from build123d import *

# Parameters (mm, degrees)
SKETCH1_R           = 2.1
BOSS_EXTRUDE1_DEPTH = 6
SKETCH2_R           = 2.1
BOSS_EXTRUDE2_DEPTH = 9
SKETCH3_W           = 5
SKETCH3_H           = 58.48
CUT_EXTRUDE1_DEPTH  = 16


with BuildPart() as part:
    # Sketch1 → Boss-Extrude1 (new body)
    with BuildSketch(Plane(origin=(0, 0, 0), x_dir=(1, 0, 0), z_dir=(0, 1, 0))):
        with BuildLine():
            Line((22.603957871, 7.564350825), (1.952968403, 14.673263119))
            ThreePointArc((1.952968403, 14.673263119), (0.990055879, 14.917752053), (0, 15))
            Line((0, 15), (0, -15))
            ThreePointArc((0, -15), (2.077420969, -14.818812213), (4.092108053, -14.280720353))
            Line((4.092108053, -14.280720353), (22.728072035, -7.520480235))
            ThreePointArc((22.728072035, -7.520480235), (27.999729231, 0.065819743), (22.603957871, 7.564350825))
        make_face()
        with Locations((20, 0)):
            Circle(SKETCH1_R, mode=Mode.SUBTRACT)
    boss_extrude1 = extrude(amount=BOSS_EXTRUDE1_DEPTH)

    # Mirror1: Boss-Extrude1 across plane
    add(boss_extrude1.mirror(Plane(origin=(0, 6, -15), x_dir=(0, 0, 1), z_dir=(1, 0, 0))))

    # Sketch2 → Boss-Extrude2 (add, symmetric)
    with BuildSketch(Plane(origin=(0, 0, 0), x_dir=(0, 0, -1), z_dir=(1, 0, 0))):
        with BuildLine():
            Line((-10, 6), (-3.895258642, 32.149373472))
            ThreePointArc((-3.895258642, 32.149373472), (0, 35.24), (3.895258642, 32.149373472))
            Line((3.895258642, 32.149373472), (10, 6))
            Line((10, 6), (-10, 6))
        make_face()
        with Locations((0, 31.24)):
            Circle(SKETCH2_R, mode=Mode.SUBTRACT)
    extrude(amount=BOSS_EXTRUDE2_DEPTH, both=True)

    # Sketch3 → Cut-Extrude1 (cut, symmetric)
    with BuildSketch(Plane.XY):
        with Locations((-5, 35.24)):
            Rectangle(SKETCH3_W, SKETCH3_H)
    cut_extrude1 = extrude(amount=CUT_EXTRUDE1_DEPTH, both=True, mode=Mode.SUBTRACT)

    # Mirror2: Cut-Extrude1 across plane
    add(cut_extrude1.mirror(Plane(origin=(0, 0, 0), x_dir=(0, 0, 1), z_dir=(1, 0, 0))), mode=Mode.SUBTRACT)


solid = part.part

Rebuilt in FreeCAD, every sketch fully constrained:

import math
import FreeCAD as App
import Part
import Sketcher
from FreeCAD import Vector


def add_polygon(sketch, points):
    """Adds a closed chain of lines whose ends are joined by coincident constraints."""
    first, n = sketch.GeometryCount, len(points)
    for a, b in zip(points, points[1:] + points[:1]):
        sketch.addGeometry(Part.LineSegment(App.Vector(*a, 0), App.Vector(*b, 0)), False)
    for i in range(n):
        sketch.addConstraint(Sketcher.Constraint("Coincident", first + i, 2, first + (i + 1) % n, 1))

doc = App.newDocument("Part")
body = doc.addObject("PartDesign::Body", "Body")

sketch1 = body.newObject("Sketcher::SketchObject", "Sketch")
sketch1.AttachmentSupport = (doc.getObject("XZ_Plane"), [""])
sketch1.MapMode = "FlatFace"
sketch1.addGeometry([
    Part.LineSegment(Vector(22.6, -7.6, 0), Vector(2, -14.7, 0)),
    Part.ArcOfCircle(Part.Circle(Vector(0, -9, 0), Vector(0, 0, 1), 6), math.radians(-90), math.radians(-71)),
    Part.LineSegment(Vector(0, -15, 0), Vector(0, 15, 0)),
    Part.ArcOfCircle(Part.Circle(Vector(0, 3, 0), Vector(0, 0, 1), 12), math.radians(70.06), math.radians(90)),
    Part.LineSegment(Vector(4.1, 14.3, 0), Vector(22.7, 7.5, 0)),
    Part.ArcOfCircle(Part.Circle(Vector(20, 0, 0), Vector(0, 0, 1), 8), math.radians(-71), math.radians(70)),
    Part.Circle(Vector(20, 0, 0), Vector(0, 0, 1), 2.1),
], False)
sketch1.addConstraint([
    Sketcher.Constraint("Tangent", 0, 2, 1, 2),
    Sketcher.Constraint("Coincident", 1, 1, 2, 1),
    Sketcher.Constraint("Coincident", 2, 2, 3, 2),
    Sketcher.Constraint("Tangent", 3, 1, 4, 1),
    Sketcher.Constraint("Tangent", 4, 2, 5, 2),
    Sketcher.Constraint("Tangent", 5, 1, 0, 1),
    Sketcher.Constraint("Vertical", 2),
    Sketcher.Constraint("Coincident", 6, 3, 5, 3),
    Sketcher.Constraint("Symmetric", 1, 1, 2, 2, -1, 1),
    Sketcher.Constraint("PointOnObject", 1, 3, -2),
    Sketcher.Constraint("PointOnObject", 3, 3, -2),
    Sketcher.Constraint("PointOnObject", 5, 3, -1),
    Sketcher.Constraint("Radius", 1, 6.0),
    Sketcher.Constraint("Radius", 3, 12.0),
    Sketcher.Constraint("Radius", 5, 8.0),
    Sketcher.Constraint("Diameter", 6, 4.2),
    Sketcher.Constraint("DistanceY", 2, 1, 2, 2, 30.0),
    Sketcher.Constraint("DistanceX", -1, 1, 5, 3, 20.0),
])
pad1 = body.newObject("PartDesign::Pad", "Pad")
pad1.Profile = sketch1
pad1.Length = 6
pad1.Reversed = True
doc.recompute()

mirrored = body.newObject("PartDesign::Mirrored", "Mirrored")
mirrored.Originals = [pad1]
mirrored.MirrorPlane = (doc.getObject("YZ_Plane"), [""])
body.Tip = mirrored

sketch2 = body.newObject("Sketcher::SketchObject", "Sketch001")
sketch2.AttachmentSupport = (doc.getObject("YZ_Plane"), [""])
sketch2.MapMode = "FlatFace"
sketch2.addGeometry([
    Part.LineSegment(Vector(32.1, 3.9, 0), Vector(6, 10, 0)),
    Part.LineSegment(Vector(6, 10, 0), Vector(6, -10, 0)),
    Part.LineSegment(Vector(6, -10, 0), Vector(32.1, -3.9, 0)),
    Part.ArcOfCircle(Part.Circle(Vector(31.2, 0, 0), Vector(0, 0, 1), 4), math.radians(-77), math.radians(77)),
    Part.Circle(Vector(31.2, 0, 0), Vector(0, 0, 1), 2.1),
], False)
sketch2.addConstraint([
    Sketcher.Constraint("Coincident", 0, 2, 1, 1),
    Sketcher.Constraint("Coincident", 1, 2, 2, 1),
    Sketcher.Constraint("Tangent", 2, 2, 3, 1),
    Sketcher.Constraint("Tangent", 3, 2, 0, 1),
    Sketcher.Constraint("Vertical", 1),
    Sketcher.Constraint("Coincident", 4, 3, 3, 3),
    Sketcher.Constraint("Symmetric", 2, 2, 3, 2, -1),
    Sketcher.Constraint("Radius", 3, 4.0),
    Sketcher.Constraint("Diameter", 4, 4.2),
    Sketcher.Constraint("DistanceY", 1, 2, 1, 1, 20.0),
    Sketcher.Constraint("DistanceX", -1, 1, 0, 2, 6.0),
    Sketcher.Constraint("DistanceX", -1, 1, 3, 3, 31.24),
])
pad2 = body.newObject("PartDesign::Pad", "Pad001")
pad2.Profile = sketch2
pad2.Length = 18
pad2.Midplane = True

sketch3 = body.newObject("Sketcher::SketchObject", "Sketch002")
sketch3.AttachmentSupport = (doc.getObject("XY_Plane"), [""])
sketch3.MapMode = "FlatFace"
add_polygon(sketch3, [(-8, 64), (-8, 6), (-2, 6), (-2, 64)])
sketch3.addConstraint([
    Sketcher.Constraint("Vertical", 0),
    Sketcher.Constraint("Horizontal", 1),
    Sketcher.Constraint("Vertical", 2),
    Sketcher.Constraint("Horizontal", 3),
    Sketcher.Constraint("DistanceX", 1, 1, 1, 2, 5.0),
    Sketcher.Constraint("DistanceY", -1, 1, 0, 2, 6.0),
    Sketcher.Constraint("DistanceY", 0, 2, 0, 1, 58.48),
    Sketcher.Constraint("DistanceX", 0, 2, -1, 1, 7.5),
])
pocket1 = body.newObject("PartDesign::Pocket", "Pocket")
pocket1.Profile = sketch3
pocket1.Length = 32
pocket1.Midplane = True
doc.recompute()

mirrored2 = body.newObject("PartDesign::Mirrored", "Mirrored001")
mirrored2.Originals = [pocket1]
mirrored2.MirrorPlane = (doc.getObject("YZ_Plane"), [""])
body.Tip = mirrored2

doc.recompute()
